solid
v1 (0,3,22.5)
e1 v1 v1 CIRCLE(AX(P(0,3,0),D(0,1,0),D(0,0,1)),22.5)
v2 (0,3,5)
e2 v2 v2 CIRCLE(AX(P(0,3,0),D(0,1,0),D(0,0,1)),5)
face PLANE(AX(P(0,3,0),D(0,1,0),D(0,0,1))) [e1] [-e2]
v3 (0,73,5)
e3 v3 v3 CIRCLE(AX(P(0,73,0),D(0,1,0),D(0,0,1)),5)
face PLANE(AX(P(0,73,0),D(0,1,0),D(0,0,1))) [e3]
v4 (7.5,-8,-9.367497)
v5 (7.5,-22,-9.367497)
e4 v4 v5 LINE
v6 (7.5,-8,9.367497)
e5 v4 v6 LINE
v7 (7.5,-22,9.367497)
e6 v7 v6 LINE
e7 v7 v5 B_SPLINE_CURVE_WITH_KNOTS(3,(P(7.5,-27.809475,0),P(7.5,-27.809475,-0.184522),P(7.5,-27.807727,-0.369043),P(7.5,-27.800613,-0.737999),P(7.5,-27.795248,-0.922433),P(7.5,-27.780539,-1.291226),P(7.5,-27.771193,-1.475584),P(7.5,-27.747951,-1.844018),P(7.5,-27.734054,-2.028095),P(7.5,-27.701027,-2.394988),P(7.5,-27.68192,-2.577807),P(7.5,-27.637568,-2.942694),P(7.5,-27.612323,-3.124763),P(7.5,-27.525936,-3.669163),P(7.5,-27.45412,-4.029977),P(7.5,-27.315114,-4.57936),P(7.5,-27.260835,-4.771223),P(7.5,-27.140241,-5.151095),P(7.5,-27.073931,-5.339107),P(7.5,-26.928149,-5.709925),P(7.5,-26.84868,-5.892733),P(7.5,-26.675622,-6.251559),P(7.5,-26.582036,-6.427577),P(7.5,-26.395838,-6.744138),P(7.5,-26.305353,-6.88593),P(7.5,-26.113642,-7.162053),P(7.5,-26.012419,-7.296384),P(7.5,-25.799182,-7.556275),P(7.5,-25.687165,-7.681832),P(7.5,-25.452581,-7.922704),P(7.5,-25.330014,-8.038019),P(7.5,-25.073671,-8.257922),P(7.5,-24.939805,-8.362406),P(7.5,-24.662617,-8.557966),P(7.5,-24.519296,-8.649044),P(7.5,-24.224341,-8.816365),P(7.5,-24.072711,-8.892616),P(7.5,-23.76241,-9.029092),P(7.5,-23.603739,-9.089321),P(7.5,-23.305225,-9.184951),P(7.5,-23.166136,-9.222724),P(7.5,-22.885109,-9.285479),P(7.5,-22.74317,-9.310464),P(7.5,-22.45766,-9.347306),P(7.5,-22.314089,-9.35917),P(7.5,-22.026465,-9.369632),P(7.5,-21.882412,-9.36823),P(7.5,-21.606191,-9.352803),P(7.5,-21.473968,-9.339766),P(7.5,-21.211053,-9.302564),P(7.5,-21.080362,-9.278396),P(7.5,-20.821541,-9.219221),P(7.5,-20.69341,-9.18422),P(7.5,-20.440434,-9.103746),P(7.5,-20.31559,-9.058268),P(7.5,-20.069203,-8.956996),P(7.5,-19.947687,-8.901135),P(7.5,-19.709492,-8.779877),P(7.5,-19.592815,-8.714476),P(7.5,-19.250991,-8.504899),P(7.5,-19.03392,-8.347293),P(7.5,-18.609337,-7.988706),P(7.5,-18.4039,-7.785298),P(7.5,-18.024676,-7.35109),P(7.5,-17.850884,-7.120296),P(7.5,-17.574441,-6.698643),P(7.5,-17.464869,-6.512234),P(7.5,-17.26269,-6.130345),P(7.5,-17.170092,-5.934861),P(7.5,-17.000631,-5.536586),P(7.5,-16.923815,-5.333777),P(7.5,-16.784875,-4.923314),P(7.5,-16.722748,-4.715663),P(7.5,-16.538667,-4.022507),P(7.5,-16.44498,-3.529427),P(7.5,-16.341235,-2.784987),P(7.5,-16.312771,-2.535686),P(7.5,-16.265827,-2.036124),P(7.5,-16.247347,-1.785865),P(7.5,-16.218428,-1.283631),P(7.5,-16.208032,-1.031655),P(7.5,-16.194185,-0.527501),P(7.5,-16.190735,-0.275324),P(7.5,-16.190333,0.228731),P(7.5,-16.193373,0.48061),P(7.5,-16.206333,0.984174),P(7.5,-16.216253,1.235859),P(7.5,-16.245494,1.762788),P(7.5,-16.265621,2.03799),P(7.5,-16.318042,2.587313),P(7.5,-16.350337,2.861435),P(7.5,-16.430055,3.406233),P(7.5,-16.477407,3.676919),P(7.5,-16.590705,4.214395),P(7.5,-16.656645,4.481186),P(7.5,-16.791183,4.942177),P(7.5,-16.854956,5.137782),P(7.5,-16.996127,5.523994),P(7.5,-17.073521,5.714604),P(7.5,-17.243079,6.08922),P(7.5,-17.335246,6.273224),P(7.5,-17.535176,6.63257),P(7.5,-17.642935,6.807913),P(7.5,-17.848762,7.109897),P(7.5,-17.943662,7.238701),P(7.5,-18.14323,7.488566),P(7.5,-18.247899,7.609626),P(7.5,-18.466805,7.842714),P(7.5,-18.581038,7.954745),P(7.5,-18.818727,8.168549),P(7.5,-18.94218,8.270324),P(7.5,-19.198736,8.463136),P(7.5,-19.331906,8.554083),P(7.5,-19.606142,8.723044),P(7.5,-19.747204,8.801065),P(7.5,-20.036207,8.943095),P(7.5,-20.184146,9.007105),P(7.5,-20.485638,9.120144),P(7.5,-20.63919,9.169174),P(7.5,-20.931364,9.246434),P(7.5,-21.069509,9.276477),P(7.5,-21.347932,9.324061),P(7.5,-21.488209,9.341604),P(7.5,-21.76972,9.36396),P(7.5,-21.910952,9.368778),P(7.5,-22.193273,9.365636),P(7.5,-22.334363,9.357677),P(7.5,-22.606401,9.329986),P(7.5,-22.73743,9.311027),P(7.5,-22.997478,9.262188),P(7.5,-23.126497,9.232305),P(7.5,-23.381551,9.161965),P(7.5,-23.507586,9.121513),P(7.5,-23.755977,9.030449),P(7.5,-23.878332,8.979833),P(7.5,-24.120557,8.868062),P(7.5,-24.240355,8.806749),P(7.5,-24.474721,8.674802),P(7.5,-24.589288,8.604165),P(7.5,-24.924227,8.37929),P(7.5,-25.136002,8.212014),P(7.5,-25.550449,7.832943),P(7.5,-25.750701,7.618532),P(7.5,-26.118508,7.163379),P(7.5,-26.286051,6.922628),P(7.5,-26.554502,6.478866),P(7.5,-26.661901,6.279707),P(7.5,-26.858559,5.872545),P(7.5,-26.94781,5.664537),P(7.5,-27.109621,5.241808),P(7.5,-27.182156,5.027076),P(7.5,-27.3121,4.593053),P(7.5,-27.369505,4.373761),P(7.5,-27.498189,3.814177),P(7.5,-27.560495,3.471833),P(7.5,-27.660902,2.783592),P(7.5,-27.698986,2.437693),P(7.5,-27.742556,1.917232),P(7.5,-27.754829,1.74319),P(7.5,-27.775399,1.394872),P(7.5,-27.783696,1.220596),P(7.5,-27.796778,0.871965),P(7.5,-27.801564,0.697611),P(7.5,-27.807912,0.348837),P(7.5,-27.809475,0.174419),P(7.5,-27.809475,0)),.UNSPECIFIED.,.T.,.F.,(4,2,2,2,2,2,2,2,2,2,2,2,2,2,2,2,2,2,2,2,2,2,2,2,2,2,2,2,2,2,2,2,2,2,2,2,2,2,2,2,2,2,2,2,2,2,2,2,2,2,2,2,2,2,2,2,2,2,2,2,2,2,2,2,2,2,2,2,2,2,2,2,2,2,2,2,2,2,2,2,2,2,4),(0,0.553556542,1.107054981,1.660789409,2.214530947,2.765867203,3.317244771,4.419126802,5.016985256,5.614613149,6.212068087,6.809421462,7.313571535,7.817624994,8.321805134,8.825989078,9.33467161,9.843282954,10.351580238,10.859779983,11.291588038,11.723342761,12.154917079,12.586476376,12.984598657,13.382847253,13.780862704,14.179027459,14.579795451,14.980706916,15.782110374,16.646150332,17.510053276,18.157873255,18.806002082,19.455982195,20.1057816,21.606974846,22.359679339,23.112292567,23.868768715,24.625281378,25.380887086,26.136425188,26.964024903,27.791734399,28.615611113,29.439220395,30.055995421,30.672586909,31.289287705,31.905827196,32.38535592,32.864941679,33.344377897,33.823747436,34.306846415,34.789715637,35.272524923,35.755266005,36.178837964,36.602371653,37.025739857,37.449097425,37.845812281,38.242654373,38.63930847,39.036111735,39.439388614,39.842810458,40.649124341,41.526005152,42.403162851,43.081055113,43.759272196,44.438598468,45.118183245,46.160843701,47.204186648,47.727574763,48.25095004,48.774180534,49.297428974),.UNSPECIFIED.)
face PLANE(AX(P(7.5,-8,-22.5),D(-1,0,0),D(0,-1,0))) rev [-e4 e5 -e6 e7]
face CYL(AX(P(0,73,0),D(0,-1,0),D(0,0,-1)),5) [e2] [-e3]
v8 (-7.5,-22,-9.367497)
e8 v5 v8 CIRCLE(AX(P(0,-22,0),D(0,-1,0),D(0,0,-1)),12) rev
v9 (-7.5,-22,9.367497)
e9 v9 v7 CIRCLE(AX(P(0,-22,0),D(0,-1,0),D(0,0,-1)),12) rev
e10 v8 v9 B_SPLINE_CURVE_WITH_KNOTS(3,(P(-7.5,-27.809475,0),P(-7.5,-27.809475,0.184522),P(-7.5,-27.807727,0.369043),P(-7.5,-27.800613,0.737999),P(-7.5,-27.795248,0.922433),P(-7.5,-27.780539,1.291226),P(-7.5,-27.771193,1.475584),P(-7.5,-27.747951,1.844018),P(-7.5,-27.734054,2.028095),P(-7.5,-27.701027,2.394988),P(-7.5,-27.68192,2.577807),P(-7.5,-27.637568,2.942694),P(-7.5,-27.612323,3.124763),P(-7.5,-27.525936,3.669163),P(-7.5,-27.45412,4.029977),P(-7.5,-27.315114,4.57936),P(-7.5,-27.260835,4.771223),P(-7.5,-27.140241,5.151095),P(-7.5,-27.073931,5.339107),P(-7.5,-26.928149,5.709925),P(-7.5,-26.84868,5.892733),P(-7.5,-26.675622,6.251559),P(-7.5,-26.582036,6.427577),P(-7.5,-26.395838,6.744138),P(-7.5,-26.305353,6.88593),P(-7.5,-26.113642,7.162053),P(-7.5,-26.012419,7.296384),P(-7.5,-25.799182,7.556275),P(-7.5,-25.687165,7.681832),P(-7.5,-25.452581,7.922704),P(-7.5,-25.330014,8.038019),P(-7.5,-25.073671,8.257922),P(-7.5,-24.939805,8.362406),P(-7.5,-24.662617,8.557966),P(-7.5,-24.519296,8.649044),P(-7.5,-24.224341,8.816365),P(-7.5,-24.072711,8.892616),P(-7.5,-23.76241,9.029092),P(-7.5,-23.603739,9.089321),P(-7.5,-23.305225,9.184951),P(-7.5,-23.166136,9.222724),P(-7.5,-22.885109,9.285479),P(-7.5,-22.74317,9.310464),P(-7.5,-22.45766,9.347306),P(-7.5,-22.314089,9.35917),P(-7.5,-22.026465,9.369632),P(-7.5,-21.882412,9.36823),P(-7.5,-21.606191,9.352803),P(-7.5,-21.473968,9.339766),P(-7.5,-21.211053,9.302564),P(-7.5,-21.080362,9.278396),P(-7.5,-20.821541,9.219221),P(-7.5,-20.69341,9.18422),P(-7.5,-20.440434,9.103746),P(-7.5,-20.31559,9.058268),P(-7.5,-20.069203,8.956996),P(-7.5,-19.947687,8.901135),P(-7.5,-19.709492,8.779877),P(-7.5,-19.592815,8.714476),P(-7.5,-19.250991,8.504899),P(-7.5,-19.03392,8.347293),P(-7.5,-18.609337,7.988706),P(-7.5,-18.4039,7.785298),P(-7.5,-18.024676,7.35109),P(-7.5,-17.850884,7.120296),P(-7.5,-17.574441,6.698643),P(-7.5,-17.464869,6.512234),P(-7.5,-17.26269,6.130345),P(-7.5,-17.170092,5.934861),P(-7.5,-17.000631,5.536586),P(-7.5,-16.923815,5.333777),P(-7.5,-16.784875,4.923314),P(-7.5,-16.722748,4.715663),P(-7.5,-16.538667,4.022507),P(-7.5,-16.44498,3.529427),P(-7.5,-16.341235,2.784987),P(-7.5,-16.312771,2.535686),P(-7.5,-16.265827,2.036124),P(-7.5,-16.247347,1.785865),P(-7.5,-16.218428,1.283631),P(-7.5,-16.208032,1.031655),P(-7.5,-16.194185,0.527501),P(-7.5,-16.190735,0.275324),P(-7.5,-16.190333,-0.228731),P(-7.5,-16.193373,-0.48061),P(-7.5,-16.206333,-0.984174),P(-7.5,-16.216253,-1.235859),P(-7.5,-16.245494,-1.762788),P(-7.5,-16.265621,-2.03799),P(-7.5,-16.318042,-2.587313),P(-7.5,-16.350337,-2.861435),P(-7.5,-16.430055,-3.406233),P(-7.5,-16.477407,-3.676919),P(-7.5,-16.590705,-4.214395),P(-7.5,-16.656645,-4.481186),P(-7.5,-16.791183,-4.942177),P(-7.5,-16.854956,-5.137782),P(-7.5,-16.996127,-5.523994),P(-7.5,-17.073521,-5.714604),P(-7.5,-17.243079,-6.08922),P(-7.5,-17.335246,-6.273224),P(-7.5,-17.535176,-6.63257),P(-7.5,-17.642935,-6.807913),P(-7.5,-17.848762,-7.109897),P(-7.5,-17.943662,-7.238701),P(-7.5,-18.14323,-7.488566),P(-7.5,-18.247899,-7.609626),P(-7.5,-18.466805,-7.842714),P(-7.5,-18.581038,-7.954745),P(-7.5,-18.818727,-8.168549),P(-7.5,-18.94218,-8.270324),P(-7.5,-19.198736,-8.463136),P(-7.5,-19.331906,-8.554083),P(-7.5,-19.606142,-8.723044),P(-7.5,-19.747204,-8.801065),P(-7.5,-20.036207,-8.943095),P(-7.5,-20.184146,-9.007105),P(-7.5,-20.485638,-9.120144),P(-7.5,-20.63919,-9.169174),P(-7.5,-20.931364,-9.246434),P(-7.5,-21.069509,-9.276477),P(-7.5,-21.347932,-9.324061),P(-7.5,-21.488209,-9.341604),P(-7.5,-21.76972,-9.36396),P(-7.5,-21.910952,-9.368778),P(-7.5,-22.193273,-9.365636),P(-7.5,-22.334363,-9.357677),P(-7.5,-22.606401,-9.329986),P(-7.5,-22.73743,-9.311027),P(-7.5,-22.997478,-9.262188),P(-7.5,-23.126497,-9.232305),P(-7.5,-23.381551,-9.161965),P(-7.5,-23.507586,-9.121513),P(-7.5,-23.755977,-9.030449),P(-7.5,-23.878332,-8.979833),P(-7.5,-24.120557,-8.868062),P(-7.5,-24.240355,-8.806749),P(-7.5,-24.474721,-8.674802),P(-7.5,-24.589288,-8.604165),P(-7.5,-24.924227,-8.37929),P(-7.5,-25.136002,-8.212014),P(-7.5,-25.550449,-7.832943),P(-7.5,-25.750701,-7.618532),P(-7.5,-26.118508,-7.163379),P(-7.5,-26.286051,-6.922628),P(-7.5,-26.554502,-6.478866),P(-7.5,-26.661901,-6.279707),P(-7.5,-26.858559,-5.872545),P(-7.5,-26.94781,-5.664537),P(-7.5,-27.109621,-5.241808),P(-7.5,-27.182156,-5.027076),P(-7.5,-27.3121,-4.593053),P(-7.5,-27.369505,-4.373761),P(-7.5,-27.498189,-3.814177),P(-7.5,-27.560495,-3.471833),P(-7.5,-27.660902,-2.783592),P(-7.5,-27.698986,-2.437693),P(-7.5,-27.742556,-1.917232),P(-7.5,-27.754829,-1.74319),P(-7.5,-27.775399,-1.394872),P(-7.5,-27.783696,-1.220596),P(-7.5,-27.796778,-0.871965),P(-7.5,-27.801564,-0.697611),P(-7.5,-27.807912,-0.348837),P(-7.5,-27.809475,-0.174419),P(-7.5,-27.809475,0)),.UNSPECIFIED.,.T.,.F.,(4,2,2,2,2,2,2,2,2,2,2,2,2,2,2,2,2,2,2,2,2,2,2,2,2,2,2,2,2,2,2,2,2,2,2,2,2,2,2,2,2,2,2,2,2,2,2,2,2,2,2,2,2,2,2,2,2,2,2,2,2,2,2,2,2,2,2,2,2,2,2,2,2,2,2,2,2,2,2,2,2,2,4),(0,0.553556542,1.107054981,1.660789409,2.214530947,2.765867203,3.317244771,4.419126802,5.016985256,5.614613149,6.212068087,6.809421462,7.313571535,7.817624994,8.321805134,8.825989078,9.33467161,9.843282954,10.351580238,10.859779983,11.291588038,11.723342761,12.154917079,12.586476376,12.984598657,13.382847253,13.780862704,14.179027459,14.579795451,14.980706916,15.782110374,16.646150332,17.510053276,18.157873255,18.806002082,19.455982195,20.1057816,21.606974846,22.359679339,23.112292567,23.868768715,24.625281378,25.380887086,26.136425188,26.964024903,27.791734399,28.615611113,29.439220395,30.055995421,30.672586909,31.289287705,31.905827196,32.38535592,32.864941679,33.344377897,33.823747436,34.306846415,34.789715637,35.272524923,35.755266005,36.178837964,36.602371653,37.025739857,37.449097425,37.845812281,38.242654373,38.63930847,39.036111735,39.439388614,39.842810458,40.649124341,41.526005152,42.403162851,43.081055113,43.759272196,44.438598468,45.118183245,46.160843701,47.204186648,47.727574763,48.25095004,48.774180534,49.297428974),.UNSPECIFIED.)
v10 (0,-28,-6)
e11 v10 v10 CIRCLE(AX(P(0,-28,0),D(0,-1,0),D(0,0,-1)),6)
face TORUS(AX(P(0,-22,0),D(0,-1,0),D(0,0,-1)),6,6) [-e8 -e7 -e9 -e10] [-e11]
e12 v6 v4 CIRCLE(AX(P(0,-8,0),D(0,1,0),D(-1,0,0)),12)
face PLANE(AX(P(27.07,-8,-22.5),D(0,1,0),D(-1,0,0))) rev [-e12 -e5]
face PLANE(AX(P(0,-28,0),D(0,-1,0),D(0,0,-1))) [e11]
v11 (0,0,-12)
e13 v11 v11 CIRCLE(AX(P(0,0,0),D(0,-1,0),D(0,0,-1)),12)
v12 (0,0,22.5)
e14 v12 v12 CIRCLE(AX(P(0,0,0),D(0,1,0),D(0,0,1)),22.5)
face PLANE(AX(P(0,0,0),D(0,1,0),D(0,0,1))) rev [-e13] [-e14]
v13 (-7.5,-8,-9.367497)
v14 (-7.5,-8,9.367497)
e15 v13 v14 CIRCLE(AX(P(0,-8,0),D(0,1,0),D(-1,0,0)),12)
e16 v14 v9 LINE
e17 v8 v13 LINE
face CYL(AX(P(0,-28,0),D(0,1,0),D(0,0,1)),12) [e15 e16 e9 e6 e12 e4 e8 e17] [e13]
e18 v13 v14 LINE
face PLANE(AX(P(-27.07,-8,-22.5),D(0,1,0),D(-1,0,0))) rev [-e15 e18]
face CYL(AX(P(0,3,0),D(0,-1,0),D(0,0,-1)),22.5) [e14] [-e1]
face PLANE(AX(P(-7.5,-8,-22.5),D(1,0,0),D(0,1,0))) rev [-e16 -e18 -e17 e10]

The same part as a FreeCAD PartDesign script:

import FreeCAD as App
import Part
import Sketcher

V = App.Vector


def edges_at(feature, points):
    """Names of the edges that pass closest to the given points."""
    edges = feature.Shape.Edges
    near = lambda p: min(range(len(edges)), key=lambda i: edges[i].distToShape(Part.Vertex(*p))[0])
    return sorted({f"Edge{near(p) + 1}" for p in points})


def add_polygon(sketch, points):
    """Adds a closed chain of lines whose ends are joined by coincident constraints."""
    first, n = sketch.GeometryCount, len(points)
    for a, b in zip(points, points[1:] + points[:1]):
        sketch.addGeometry(Part.LineSegment(App.Vector(*a, 0), App.Vector(*b, 0)), False)
    for i in range(n):
        sketch.addConstraint(Sketcher.Constraint("Coincident", first + i, 2, first + (i + 1) % n, 1))

doc = App.newDocument("Part")
params = doc.addObject("Spreadsheet::Sheet", "Params")
for row, (alias, value) in enumerate([
    ("sketch1_diameter", "45 mm"),
    ("pad1_length", "3 mm"),
    ("sketch2_diameter", "10 mm"),
    ("pad2_length", "70 mm"),
    ("sketch3_diameter", "24 mm"),
    ("pad3_length", "28 mm"),
    ("fillet_radius", "6 mm"),
    ("sketch4_height", "20 mm"),
    ("sketch4_width", "19.57 mm"),
], start=1):
    params.set(f"A{row}", alias)
    params.set(f"B{row}", "=" + value)
    params.setAlias(f"B{row}", alias)

body = doc.addObject("PartDesign::Body", "Body")

sketch1 = body.newObject("Sketcher::SketchObject", "Sketch")
sketch1.AttachmentSupport = (doc.getObject("XZ_Plane"), [""])
sketch1.MapMode = "FlatFace"
sketch1.addGeometry(Part.Circle(V(0, 0, 0), V(0, 0, 1), 22), False)
sketch1.addConstraint(Sketcher.Constraint("Coincident", 0, 3, -1, 1))
sketch1.addConstraint(Sketcher.Constraint("Diameter", 0, 45.0))
sketch1.setExpression("Constraints[1]", "Params.sketch1_diameter")
pad1 = body.newObject("PartDesign::Pad", "Pad")
pad1.Profile = sketch1
pad1.setExpression("Length", "Params.pad1_length")
pad1.Reversed = True

sketch2 = body.newObject("Sketcher::SketchObject", "Sketch001")
sketch2.AttachmentSupport = (doc.getObject("XZ_Plane"), [""])
sketch2.MapMode = "FlatFace"
sketch2.AttachmentOffset = App.Placement(V(0, 0, -3), App.Rotation())
sketch2.addGeometry(Part.Circle(V(0, 0, 0), V(0, 0, 1), 5), False)
sketch2.addConstraint(Sketcher.Constraint("Coincident", 0, 3, -1, 1))
sketch2.addConstraint(Sketcher.Constraint("Diameter", 0, 10.0))
sketch2.setExpression("Constraints[1]", "Params.sketch2_diameter")
pad2 = body.newObject("PartDesign::Pad", "Pad001")
pad2.Profile = sketch2
pad2.setExpression("Length", "Params.pad2_length")
pad2.Reversed = True

sketch3 = body.newObject("Sketcher::SketchObject", "Sketch002")
sketch3.AttachmentSupport = (doc.getObject("XZ_Plane"), [""])
sketch3.MapMode = "FlatFace"
sketch3.addGeometry(Part.Circle(V(0, 0, 0), V(0, 0, 1), 12), False)
sketch3.addConstraint(Sketcher.Constraint("Coincident", 0, 3, -1, 1))
sketch3.addConstraint(Sketcher.Constraint("Diameter", 0, 24.0))
sketch3.setExpression("Constraints[1]", "Params.sketch3_diameter")
pad3 = body.newObject("PartDesign::Pad", "Pad002")
pad3.Profile = sketch3
pad3.setExpression("Length", "Params.pad3_length")
doc.recompute()

fillet = body.newObject("PartDesign::Fillet", "Fillet")
fillet.Base = (pad3, edges_at(pad3, [(0, -28, 12)]))
fillet.setExpression("Radius", "Params.fillet_radius")

sketch4 = body.newObject("Sketcher::SketchObject", "Sketch003")
sketch4.AttachmentSupport = (doc.getObject("XY_Plane"), [""])
sketch4.MapMode = "FlatFace"
add_polygon(sketch4, [(8, -8), (8, -28), (27, -28), (27, -8)])
add_polygon(sketch4, [(-27, -8), (-27, -28), (-8, -28), (-8, -8)])
sketch4.addConstraint(Sketcher.Constraint("Vertical", 0))
sketch4.addConstraint(Sketcher.Constraint("Horizontal", 1))
sketch4.addConstraint(Sketcher.Constraint("Vertical", 2))
sketch4.addConstraint(Sketcher.Constraint("Horizontal", 3))
sketch4.addConstraint(Sketcher.Constraint("Vertical", 4))
sketch4.addConstraint(Sketcher.Constraint("Horizontal", 5))
sketch4.addConstraint(Sketcher.Constraint("Vertical", 6))
sketch4.addConstraint(Sketcher.Constraint("Horizontal", 7))
sketch4.addConstraint(Sketcher.Constraint("Symmetric", 1, 2, 4, 2, -2))
sketch4.addConstraint(Sketcher.Constraint("Symmetric", 3, 2, 6, 2, -2))
sketch4.addConstraint(Sketcher.Constraint("DistanceY", 0, 2, 0, 1, 20.0))
sketch4.addConstraint(Sketcher.Constraint("DistanceY", 0, 2, -1, 1, 28.0))
sketch4.addConstraint(Sketcher.Constraint("DistanceX", 5, 2, 0, 2, 15.0))
sketch4.addConstraint(Sketcher.Constraint("DistanceX", 1, 1, 1, 2, 19.57))
sketch4.setExpression("Constraints[18]", "Params.sketch4_height")
sketch4.setExpression("Constraints[21]", "Params.sketch4_width")
pocket1 = body.newObject("PartDesign::Pocket", "Pocket")
pocket1.Profile = sketch4
pocket1.Type = "ThroughAll"
pocket1.Midplane = True

doc.recompute()
